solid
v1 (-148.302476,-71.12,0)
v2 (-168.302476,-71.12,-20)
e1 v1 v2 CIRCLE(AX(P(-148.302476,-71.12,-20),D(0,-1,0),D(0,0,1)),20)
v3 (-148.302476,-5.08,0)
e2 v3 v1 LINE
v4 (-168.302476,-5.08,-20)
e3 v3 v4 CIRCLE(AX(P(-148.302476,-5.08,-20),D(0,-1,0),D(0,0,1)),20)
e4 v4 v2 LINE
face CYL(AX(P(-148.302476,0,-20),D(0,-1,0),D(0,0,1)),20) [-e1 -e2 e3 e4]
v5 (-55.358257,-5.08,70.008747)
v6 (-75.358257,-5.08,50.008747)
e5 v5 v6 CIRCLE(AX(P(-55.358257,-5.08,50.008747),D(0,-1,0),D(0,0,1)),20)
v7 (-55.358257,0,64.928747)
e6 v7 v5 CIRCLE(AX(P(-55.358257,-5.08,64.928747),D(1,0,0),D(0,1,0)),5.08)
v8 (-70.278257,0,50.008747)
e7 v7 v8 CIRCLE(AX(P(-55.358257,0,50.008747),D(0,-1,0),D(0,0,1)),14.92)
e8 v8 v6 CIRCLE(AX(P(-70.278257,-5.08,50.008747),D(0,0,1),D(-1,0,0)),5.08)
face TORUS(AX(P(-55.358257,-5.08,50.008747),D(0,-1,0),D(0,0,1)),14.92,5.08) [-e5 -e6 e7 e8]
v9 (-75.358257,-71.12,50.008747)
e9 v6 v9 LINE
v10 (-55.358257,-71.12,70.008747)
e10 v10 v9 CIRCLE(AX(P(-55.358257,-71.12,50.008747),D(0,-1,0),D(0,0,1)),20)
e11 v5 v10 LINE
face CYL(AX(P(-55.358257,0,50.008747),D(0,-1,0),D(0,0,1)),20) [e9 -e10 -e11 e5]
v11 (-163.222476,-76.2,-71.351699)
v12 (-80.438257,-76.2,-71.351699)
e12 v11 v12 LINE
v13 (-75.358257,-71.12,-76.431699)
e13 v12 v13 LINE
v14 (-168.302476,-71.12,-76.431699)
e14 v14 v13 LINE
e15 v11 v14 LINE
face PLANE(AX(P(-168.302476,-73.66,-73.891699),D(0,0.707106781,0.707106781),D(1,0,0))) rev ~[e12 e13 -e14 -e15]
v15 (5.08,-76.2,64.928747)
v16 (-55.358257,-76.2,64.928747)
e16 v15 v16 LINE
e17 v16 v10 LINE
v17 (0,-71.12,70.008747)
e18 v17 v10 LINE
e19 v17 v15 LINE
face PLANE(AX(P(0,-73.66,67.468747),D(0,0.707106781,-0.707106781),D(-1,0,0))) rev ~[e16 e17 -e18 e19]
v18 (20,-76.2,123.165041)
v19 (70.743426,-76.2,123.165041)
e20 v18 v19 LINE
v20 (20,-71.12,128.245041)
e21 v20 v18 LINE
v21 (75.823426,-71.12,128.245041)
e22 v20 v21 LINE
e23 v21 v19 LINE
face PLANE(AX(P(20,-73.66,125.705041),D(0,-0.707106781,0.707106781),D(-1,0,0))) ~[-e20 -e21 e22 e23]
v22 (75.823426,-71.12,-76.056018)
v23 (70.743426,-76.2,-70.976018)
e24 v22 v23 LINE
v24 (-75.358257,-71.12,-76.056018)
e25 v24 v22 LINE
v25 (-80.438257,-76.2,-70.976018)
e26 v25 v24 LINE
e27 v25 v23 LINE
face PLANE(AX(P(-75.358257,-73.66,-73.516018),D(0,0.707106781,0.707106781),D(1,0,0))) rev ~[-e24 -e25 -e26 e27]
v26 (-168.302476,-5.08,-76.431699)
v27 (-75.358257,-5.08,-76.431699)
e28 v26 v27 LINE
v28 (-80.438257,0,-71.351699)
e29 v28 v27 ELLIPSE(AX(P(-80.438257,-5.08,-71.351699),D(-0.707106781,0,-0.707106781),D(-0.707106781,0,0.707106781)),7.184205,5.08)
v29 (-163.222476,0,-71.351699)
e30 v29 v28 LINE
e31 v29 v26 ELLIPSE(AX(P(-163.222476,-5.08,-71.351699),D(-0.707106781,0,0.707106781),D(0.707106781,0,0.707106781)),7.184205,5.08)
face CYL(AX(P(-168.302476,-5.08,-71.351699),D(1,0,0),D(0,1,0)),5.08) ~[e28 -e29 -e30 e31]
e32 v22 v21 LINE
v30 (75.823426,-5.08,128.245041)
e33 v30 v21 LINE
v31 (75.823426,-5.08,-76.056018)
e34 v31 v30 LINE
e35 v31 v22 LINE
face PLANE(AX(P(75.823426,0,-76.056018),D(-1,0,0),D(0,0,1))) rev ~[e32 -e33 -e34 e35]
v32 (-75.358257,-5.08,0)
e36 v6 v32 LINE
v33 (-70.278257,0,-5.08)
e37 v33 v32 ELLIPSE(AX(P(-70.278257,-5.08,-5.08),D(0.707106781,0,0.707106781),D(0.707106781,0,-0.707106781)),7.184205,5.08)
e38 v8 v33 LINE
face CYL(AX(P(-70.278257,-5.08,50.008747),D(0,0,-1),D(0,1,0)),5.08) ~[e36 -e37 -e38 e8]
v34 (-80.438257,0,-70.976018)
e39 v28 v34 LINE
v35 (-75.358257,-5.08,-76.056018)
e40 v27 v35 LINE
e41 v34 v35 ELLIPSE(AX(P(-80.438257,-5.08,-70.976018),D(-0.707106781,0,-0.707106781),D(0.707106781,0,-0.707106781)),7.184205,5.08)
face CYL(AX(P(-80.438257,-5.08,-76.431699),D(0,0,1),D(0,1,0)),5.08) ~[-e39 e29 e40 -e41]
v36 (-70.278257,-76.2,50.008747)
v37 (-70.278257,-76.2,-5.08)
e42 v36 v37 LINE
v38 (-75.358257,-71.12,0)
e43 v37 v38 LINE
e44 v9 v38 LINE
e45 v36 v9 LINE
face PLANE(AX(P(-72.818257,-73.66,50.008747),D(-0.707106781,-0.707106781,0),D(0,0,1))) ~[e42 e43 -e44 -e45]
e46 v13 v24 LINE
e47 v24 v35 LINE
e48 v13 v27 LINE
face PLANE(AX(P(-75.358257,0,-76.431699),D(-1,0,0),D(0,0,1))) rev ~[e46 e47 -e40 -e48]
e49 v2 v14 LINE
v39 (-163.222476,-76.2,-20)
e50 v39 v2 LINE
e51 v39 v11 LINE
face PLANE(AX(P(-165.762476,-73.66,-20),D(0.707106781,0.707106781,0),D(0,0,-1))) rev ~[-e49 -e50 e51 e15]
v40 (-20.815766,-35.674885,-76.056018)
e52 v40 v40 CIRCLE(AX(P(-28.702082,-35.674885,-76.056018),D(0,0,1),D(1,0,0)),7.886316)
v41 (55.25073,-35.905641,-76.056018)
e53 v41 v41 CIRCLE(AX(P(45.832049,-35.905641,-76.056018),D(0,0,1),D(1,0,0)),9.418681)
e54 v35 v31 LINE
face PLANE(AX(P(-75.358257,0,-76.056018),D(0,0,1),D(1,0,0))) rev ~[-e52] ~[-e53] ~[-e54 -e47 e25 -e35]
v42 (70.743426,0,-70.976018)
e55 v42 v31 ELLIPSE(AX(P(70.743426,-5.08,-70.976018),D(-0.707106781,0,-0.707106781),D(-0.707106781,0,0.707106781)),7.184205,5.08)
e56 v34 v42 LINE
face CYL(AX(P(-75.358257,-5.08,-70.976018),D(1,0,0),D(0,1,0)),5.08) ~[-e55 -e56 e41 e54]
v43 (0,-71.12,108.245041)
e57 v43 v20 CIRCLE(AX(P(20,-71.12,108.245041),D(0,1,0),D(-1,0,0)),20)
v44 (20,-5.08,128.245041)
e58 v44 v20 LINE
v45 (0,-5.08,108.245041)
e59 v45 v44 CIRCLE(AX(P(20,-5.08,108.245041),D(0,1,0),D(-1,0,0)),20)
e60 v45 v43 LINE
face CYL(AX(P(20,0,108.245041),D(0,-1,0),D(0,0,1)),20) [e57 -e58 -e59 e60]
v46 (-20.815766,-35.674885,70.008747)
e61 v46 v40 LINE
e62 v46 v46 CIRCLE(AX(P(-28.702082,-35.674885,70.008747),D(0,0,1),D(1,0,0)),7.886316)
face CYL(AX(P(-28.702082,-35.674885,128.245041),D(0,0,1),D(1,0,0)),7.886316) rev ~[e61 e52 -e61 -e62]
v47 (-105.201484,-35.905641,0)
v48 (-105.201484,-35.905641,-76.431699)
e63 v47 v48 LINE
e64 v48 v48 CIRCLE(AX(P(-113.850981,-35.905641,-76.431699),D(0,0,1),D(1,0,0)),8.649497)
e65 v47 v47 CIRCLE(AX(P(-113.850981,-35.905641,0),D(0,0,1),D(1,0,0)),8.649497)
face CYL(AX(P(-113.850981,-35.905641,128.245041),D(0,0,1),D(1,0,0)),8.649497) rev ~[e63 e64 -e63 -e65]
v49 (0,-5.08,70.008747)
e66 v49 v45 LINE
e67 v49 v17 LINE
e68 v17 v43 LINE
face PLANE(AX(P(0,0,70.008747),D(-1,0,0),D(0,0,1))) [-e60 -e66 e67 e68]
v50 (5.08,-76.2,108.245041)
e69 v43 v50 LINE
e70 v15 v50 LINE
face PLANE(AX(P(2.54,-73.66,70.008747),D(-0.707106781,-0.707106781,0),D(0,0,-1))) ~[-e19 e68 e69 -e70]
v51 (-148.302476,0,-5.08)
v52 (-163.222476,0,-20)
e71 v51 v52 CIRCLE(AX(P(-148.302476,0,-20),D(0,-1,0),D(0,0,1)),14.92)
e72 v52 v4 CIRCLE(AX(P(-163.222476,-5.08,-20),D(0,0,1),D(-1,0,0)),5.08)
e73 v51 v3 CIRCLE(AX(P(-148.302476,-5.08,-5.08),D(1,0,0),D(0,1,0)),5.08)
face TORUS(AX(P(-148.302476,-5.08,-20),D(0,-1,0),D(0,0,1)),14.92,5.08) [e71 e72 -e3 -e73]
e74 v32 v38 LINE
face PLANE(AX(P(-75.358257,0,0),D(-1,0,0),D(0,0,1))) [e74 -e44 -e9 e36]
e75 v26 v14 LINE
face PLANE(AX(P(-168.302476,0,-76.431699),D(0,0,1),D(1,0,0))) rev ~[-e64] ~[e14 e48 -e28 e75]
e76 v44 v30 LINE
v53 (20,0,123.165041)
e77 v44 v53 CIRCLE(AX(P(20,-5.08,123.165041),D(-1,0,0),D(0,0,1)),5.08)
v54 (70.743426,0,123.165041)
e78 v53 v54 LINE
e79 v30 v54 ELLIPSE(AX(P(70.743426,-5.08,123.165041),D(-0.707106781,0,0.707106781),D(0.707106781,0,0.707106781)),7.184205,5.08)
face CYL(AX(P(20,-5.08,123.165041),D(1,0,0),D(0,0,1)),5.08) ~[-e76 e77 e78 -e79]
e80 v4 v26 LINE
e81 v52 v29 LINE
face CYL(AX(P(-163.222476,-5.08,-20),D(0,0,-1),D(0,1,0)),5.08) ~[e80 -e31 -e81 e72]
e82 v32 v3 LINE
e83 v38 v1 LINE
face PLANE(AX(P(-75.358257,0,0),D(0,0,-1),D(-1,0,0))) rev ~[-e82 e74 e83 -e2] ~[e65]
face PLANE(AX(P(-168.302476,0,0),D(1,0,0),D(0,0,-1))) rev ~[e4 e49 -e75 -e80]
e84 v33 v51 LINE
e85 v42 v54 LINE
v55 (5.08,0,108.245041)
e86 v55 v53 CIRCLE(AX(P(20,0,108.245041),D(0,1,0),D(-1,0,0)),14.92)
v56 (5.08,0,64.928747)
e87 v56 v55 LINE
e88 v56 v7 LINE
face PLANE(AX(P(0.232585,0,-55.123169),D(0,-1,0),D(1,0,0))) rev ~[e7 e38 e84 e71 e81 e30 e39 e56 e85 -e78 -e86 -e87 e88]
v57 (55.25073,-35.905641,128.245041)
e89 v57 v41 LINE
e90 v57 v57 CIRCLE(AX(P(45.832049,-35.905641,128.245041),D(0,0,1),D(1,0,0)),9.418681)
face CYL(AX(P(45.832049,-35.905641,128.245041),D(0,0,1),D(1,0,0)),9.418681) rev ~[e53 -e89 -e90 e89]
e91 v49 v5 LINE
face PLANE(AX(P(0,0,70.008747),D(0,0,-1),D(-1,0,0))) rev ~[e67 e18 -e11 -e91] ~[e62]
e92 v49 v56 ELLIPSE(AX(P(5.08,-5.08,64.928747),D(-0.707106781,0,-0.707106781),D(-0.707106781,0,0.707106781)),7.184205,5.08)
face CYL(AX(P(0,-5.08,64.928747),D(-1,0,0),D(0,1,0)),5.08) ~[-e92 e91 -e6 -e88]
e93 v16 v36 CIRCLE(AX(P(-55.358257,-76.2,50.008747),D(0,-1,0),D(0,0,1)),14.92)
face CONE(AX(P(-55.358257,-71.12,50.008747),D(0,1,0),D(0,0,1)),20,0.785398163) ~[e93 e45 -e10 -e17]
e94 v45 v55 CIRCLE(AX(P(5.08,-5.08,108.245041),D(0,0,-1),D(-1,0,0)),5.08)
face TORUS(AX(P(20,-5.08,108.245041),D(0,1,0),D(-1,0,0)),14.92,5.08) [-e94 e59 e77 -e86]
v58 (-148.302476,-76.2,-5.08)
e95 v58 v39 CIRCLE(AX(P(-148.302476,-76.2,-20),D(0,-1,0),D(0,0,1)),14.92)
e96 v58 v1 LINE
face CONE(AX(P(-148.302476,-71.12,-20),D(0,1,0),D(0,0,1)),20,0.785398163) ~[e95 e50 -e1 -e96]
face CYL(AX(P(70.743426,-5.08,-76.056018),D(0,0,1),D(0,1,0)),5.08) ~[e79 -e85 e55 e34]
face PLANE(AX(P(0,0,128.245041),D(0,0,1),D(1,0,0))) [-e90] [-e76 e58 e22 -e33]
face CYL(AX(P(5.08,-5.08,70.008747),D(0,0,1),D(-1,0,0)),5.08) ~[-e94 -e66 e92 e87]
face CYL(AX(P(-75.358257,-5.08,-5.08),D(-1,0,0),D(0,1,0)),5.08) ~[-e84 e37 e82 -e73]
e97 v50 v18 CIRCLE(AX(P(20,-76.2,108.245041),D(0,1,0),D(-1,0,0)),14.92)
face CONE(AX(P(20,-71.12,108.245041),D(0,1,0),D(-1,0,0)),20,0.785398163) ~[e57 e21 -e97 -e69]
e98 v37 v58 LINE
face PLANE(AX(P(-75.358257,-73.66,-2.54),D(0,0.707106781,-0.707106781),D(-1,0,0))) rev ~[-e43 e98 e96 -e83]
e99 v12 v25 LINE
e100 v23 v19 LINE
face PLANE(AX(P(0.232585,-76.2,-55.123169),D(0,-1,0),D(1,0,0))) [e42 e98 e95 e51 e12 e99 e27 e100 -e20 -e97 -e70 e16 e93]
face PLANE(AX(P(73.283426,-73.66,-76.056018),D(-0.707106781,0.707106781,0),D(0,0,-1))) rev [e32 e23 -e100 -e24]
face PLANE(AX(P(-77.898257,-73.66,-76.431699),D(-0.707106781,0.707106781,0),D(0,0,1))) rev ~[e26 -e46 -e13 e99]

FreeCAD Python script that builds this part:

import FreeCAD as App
import Part
import Sketcher

V = App.Vector
Q = App.Units.Quantity


def edges_at(feature, points):
    """Names of the edges that pass closest to the given points."""
    edges = feature.Shape.Edges
    near = lambda p: min(range(len(edges)), key=lambda i: edges[i].distToShape(Part.Vertex(*p))[0])
    return sorted({f"Edge{near(p) + 1}" for p in points})

doc = App.newDocument("Part")
body = doc.addObject("PartDesign::Body", "Body")

sketch1 = body.newObject("Sketcher::SketchObject", "Sketch")
sketch1.AttachmentSupport = (doc.getObject("XZ_Plane"), [""])
sketch1.MapMode = "FlatFace"
sketch1.addGeometry([
    Part.LineSegment(V(-75.36, -76.06, 0), V(75.82, -76.06, 0)),
    Part.LineSegment(V(75.82, -76.06, 0), V(75.82, 128.25, 0)),
    Part.LineSegment(V(75.82, 128.25, 0), V(0, 128.25, 0)),
    Part.LineSegment(V(0, 128.25, 0), V(0, 70.01, 0)),
    Part.LineSegment(V(0, 70.01, 0), V(-75.36, 70.01, 0)),
    Part.LineSegment(V(-75.36, 70.01, 0), V(-75.36, 0, 0)),
    Part.LineSegment(V(-75.36, 0, 0), V(-168.3, 0, 0)),
    Part.LineSegment(V(-168.3, 0, 0), V(-168.3, -76.43, 0)),
    Part.LineSegment(V(-168.3, -76.43, 0), V(-75.36, -76.43, 0)),
    Part.LineSegment(V(-75.36, -76.43, 0), V(-75.36, -76.06, 0)),
], False)
sketch1.addConstraint([
    Sketcher.Constraint("Coincident", 0, 2, 1, 1),
    Sketcher.Constraint("Coincident", 1, 2, 2, 1),
    Sketcher.Constraint("Coincident", 2, 2, 3, 1),
    Sketcher.Constraint("Coincident", 3, 2, 4, 1),
    Sketcher.Constraint("Coincident", 4, 2, 5, 1),
    Sketcher.Constraint("Coincident", 5, 2, 6, 1),
    Sketcher.Constraint("Coincident", 6, 2, 7, 1),
    Sketcher.Constraint("Coincident", 7, 2, 8, 1),
    Sketcher.Constraint("Coincident", 8, 2, 9, 1),
    Sketcher.Constraint("Coincident", 9, 2, 0, 1),
    Sketcher.Constraint("Horizontal", 0),
    Sketcher.Constraint("Vertical", 1),
    Sketcher.Constraint("Horizontal", 2),
    Sketcher.Constraint("Vertical", 3),
    Sketcher.Constraint("Horizontal", 4),
    Sketcher.Constraint("Vertical", 5),
    Sketcher.Constraint("Horizontal", 6),
    Sketcher.Constraint("Vertical", 7),
    Sketcher.Constraint("Horizontal", 8),
    Sketcher.Constraint("Vertical", 9),
    Sketcher.Constraint("PointOnObject", 2, 2, -2),
    Sketcher.Constraint("PointOnObject", 5, 2, -1),
    Sketcher.Constraint("Vertical", 5, 2, 8, 2),
    Sketcher.Constraint("DistanceY", 7, 2, 7, 1, Q("76.431699 mm")),
    Sketcher.Constraint("DistanceX", 6, 2, 6, 1, Q("92.94422 mm")),
    Sketcher.Constraint("DistanceY", 1, 1, 1, 2, Q("204.301059 mm")),
    Sketcher.Constraint("DistanceY", 9, 1, 9, 2, Q("0.375681 mm")),
    Sketcher.Constraint("DistanceX", 0, 1, 0, 2, Q("151.181683 mm")),
    Sketcher.Constraint("DistanceX", 2, 2, 2, 1, Q("75.823426 mm")),
    Sketcher.Constraint("DistanceY", 3, 2, 3, 1, Q("58.236293 mm")),
])
pad1 = body.newObject("PartDesign::Pad", "Pad")
pad1.Profile = sketch1
pad1.Length = 76.2

sketch2 = body.newObject("Sketcher::SketchObject", "Sketch001")
sketch2.AttachmentSupport = (doc.getObject("XZ_Plane"), [""])
sketch2.MapMode = "FlatFace"
sketch2.addGeometry([
    Part.LineSegment(V(-75.36, -76.06, 0), V(75.82, -76.06, 0)),
    Part.LineSegment(V(75.82, -76.06, 0), V(75.82, 128.25, 0)),
    Part.LineSegment(V(75.82, 128.25, 0), V(0, 128.25, 0)),
    Part.LineSegment(V(0, 128.25, 0), V(0, 70.01, 0)),
    Part.LineSegment(V(0, 70.01, 0), V(-75.36, 70.01, 0)),
    Part.LineSegment(V(-75.36, 70.01, 0), V(-75.36, 0, 0)),
    Part.LineSegment(V(-75.36, 0, 0), V(-168.3, 0, 0)),
    Part.LineSegment(V(-168.3, 0, 0), V(-168.3, -76.43, 0)),
    Part.LineSegment(V(-168.3, -76.43, 0), V(-75.36, -76.43, 0)),
    Part.LineSegment(V(-75.36, -76.43, 0), V(-75.36, -76.06, 0)),
], False)
sketch2.addConstraint([
    Sketcher.Constraint("Coincident", 0, 2, 1, 1),
    Sketcher.Constraint("Coincident", 1, 2, 2, 1),
    Sketcher.Constraint("Coincident", 2, 2, 3, 1),
    Sketcher.Constraint("Coincident", 3, 2, 4, 1),
    Sketcher.Constraint("Coincident", 4, 2, 5, 1),
    Sketcher.Constraint("Coincident", 5, 2, 6, 1),
    Sketcher.Constraint("Coincident", 6, 2, 7, 1),
    Sketcher.Constraint("Coincident", 7, 2, 8, 1),
    Sketcher.Constraint("Coincident", 8, 2, 9, 1),
    Sketcher.Constraint("Coincident", 9, 2, 0, 1),
    Sketcher.Constraint("Horizontal", 0),
    Sketcher.Constraint("Vertical", 1),
    Sketcher.Constraint("Horizontal", 2),
    Sketcher.Constraint("Vertical", 3),
    Sketcher.Constraint("Horizontal", 4),
    Sketcher.Constraint("Vertical", 5),
    Sketcher.Constraint("Horizontal", 6),
    Sketcher.Constraint("Vertical", 7),
    Sketcher.Constraint("Horizontal", 8),
    Sketcher.Constraint("Vertical", 9),
    Sketcher.Constraint("PointOnObject", 2, 2, -2),
    Sketcher.Constraint("PointOnObject", 5, 2, -1),
    Sketcher.Constraint("Vertical", 5, 2, 8, 2),
    Sketcher.Constraint("DistanceY", 7, 2, 7, 1, Q("76.431699 mm")),
    Sketcher.Constraint("DistanceX", 6, 2, 6, 1, Q("92.94422 mm")),
    Sketcher.Constraint("DistanceY", 1, 1, 1, 2, Q("204.301059 mm")),
    Sketcher.Constraint("DistanceY", 9, 1, 9, 2, Q("0.375681 mm")),
    Sketcher.Constraint("DistanceX", 0, 1, 0, 2, Q("151.181683 mm")),
    Sketcher.Constraint("DistanceX", 2, 2, 2, 1, Q("75.823426 mm")),
    Sketcher.Constraint("DistanceY", 3, 2, 3, 1, Q("58.236293 mm")),
])
pad2 = body.newObject("PartDesign::Pad", "Pad001")
pad2.Profile = sketch2
pad2.Length = 30
doc.recompute()

fillet = body.newObject("PartDesign::Fillet", "Fillet")
fillet.Base = (pad2, edges_at(pad2, [(0, -38.1, 128.245), (-75.358, -38.1, 70.009), (-168.302, -38.1, 0)]))
fillet.Radius = 20
doc.recompute()

chamfer = body.newObject("PartDesign::Chamfer", "Chamfer")
chamfer.Base = (fillet, edges_at(fillet, [
    (47.912, -76.2, 128.245),
    (5.858, -76.2, 122.387),
    (75.823, -76.2, 26.095),
    (0, -76.2, 89.127),
    (0.233, -76.2, -76.056),
    (-27.679, -76.2, 70.009),
    (-75.358, -76.2, -76.244),
    (-69.5, -76.2, 64.151),
    (-121.83, -76.2, -76.432),
    (-75.358, -76.2, 25.004),
    (-168.302, -76.2, -48.216),
    (-111.83, -76.2, 0),
    (-162.445, -76.2, -5.858),
]))
chamfer.Size = 5.08
doc.recompute()

fillet2 = body.newObject("PartDesign::Fillet", "Fillet001")
fillet2.Base = (chamfer, edges_at(chamfer, [
    (47.912, 0, 128.245),
    (5.858, 0, 122.387),
    (75.823, 0, 26.095),
    (0, 0, 89.127),
    (0.233, 0, -76.056),
    (-27.679, 0, 70.009),
    (-75.358, 0, -76.244),
    (-69.5, 0, 64.151),
    (-121.83, 0, -76.432),
    (-75.358, 0, 25.004),
    (-168.302, 0, -48.216),
    (-111.83, 0, 0),
    (-162.445, 0, -5.858),
]))
fillet2.Radius = 5.08

sketch3 = body.newObject("Sketcher::SketchObject", "Sketch002")
sketch3.AttachmentSupport = (doc.getObject("XY_Plane"), [""])
sketch3.MapMode = "FlatFace"
sketch3.AttachmentOffset = App.Placement(V(0, 0, 128.245041), App.Rotation())
sketch3.addGeometry([
    Part.Circle(V(-114, -36, 0), V(0, 0, 1), 9),
    Part.Circle(V(-29, -36, 0), V(0, 0, 1), 8),
    Part.Circle(V(46, -36, 0), V(0, 0, 1), 9),
], False)
sketch3.addConstraint([
    Sketcher.Constraint("Horizontal", 0, 3, 2, 3),
    Sketcher.Constraint("Diameter", 2, Q("18.837361 mm")),
    Sketcher.Constraint("Diameter", 0, Q("17.298994 mm")),
    Sketcher.Constraint("Diameter", 1, Q("15.772633 mm")),
    Sketcher.Constraint("DistanceX", 0, 3, 1, 3, Q("85.148899 mm")),
    Sketcher.Constraint("DistanceX", 0, 3, -1, 1, Q("113.850981 mm")),
    Sketcher.Constraint("DistanceY", 0, 3, -1, 1, Q("35.905641 mm")),
    Sketcher.Constraint("DistanceX", -1, 1, 2, 3, Q("45.832049 mm")),
    Sketcher.Constraint("DistanceY", 1, 3, -1, 1, Q("35.674885 mm")),
])
pocket1 = body.newObject("PartDesign::Pocket", "Pocket")
pocket1.Profile = sketch3
pocket1.Type = "ThroughAll"

doc.recompute()
